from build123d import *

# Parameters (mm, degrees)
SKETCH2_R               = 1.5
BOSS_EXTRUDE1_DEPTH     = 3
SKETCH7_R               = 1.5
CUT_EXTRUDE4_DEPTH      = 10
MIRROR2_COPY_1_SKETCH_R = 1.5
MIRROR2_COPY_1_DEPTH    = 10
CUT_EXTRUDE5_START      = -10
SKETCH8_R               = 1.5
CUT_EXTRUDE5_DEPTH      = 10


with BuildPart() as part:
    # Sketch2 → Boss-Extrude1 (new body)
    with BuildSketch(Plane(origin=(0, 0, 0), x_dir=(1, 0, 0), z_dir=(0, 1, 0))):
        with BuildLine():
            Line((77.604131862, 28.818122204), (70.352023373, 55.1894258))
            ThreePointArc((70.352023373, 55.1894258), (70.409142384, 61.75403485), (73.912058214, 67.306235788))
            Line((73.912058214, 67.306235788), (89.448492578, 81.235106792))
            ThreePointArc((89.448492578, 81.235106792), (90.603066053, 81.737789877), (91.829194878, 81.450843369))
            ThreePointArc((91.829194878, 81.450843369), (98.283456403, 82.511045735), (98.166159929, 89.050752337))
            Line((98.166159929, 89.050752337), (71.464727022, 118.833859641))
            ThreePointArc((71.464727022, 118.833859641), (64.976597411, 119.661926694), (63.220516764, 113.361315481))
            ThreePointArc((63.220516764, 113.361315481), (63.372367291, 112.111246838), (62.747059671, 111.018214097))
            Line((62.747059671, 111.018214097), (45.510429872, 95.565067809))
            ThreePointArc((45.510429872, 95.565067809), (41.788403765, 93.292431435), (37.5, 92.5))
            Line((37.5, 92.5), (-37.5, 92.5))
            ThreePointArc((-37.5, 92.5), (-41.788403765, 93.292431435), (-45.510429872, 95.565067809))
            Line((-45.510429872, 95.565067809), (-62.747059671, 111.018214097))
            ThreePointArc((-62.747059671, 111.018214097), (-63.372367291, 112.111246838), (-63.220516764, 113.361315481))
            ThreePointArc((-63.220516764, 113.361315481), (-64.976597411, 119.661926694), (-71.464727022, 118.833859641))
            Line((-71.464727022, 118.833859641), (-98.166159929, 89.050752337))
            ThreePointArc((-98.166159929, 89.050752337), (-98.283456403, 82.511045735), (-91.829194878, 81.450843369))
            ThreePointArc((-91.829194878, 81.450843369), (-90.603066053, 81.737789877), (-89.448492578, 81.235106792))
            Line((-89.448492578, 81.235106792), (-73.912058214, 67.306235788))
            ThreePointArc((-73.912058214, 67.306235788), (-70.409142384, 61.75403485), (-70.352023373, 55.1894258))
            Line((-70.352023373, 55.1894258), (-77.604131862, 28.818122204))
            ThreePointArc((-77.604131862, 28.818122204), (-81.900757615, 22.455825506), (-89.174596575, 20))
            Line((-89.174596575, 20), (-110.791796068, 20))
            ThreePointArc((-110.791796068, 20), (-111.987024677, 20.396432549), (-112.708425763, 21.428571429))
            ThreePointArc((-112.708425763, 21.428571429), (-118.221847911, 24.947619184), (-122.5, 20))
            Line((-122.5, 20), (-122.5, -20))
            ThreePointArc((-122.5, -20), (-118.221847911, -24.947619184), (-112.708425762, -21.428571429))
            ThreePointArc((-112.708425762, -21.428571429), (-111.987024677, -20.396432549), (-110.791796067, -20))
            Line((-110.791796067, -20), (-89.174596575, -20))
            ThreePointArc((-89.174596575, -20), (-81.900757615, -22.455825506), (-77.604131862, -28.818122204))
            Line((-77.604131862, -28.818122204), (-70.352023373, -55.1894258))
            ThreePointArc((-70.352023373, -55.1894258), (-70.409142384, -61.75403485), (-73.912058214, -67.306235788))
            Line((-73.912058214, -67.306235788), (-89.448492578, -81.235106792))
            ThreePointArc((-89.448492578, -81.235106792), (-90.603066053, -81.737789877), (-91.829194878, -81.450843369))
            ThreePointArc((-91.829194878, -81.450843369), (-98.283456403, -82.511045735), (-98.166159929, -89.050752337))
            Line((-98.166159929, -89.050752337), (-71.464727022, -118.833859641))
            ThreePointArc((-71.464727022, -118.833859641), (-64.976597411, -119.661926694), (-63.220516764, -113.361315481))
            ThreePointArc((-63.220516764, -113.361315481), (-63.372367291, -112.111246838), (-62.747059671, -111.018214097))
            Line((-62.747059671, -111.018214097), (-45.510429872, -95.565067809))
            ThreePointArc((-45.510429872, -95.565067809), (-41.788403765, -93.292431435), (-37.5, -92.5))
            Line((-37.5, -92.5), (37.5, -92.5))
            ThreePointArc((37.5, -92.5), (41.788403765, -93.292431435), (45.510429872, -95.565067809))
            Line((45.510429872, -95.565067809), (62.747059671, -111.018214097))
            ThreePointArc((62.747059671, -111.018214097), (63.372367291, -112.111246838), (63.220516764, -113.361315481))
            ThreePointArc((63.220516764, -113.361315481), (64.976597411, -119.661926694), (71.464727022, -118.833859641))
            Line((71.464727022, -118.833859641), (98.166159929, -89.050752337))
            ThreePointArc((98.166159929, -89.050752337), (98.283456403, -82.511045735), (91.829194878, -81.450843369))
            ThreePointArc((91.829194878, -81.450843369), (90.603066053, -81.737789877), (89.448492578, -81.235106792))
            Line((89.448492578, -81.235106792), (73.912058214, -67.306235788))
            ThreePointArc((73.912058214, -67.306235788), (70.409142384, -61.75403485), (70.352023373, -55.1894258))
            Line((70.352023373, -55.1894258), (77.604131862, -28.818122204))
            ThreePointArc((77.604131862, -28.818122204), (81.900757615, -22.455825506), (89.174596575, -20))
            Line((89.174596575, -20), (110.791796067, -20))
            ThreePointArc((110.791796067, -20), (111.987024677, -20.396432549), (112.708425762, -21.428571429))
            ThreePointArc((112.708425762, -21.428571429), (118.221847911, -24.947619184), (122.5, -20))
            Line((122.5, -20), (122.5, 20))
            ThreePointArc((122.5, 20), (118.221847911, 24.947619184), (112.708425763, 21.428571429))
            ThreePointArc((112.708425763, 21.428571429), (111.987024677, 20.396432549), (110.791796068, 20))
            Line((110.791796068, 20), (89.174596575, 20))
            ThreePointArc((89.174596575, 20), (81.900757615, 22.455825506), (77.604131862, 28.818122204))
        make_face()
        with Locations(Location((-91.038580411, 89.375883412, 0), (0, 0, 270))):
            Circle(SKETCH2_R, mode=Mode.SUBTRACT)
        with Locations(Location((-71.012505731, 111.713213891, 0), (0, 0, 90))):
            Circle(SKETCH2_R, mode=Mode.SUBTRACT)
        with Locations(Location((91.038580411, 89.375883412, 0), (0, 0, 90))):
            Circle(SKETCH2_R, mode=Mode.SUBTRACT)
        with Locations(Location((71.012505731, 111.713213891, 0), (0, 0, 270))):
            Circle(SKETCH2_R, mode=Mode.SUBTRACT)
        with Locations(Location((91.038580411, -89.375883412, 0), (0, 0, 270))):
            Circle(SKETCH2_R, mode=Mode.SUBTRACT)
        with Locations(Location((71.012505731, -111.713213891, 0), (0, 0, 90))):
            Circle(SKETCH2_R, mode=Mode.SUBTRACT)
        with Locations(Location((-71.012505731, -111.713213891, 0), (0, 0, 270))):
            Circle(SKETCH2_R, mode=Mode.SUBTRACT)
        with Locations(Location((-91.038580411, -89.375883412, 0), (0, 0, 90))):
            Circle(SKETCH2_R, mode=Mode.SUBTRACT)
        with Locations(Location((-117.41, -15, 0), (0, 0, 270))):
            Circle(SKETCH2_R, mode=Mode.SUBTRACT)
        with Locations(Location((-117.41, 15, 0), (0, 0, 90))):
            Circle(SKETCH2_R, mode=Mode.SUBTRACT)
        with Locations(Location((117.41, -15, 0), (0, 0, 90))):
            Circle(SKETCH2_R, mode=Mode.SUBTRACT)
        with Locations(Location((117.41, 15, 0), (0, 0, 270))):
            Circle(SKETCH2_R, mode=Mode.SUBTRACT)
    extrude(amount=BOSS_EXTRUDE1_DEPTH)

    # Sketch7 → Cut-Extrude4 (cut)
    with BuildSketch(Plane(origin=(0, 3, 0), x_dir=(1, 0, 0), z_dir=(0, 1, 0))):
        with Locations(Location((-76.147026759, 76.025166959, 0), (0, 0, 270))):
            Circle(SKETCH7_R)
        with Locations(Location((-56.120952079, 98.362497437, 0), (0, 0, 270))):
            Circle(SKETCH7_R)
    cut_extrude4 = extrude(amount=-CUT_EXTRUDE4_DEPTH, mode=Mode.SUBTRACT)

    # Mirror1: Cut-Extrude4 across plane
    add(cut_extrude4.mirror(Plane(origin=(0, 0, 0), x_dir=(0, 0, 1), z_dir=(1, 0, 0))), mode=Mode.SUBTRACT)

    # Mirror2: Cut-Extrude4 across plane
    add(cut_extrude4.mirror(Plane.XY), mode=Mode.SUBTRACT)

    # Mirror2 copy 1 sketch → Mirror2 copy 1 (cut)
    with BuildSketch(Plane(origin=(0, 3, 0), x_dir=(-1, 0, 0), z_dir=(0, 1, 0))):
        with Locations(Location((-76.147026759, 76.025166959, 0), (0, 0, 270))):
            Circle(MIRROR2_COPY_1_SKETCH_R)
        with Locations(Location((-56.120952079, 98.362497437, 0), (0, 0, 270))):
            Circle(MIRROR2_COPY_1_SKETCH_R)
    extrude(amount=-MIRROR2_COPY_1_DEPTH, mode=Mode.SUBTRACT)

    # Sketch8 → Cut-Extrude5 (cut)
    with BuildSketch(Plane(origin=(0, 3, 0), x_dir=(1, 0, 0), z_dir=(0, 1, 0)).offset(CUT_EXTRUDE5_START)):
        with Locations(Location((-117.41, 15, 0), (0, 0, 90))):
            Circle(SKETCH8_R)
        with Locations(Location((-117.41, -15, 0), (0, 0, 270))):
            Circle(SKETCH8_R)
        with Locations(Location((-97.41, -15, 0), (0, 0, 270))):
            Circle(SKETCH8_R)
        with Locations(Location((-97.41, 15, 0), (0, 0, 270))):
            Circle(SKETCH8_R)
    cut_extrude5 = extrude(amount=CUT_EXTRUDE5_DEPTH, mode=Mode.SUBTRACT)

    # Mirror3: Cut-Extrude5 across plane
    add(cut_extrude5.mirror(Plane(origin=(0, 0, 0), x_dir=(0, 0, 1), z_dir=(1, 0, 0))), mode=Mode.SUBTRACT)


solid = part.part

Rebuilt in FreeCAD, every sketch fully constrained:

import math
import FreeCAD as App
import Part
import Sketcher
Q = App.Units.Quantity

doc = App.newDocument("Part")
params = doc.addObject("Spreadsheet::Sheet", "Params")
for row, (alias, value) in enumerate([
    ("sketch1_diameter", "3 mm"),
    ("sketch1_radius", "12 mm"),
    ("sketch1_radius2", "2 mm"),
    ("sketch1_radius3", "5 mm"),
    ("sketch1_width", "75 mm"),
    ("pad1_length", "3 mm"),
    ("sketch2_diameter", "3 mm"),
    ("pocket1_length", "10 mm"),
    ("sketch3_diameter", "3 mm"),
    ("pocket2_length", "10 mm"),
    ("sketch4_diameter", "3 mm"),
    ("pocket3_length", "10 mm"),
], start=1):
    params.set(f"A{row}", alias)
    params.set(f"B{row}", "=" + value)
    params.setAlias(f"B{row}", alias)

body = doc.addObject("PartDesign::Body", "Body")

sketch1 = body.newObject("Sketcher::SketchObject", "Sketch")
sketch1.AttachmentSupport = (doc.getObject("XZ_Plane"), [""])
sketch1.MapMode = "FlatFace"
sketch1.addGeometry([
    Part.LineSegment(App.Vector(77.6, -28.8, 0), App.Vector(70.4, -55.2, 0)),
    Part.ArcOfCircle(Part.Circle(App.Vector(81.9, -58.4, 0), App.Vector(0, 0, 1), 12), math.radians(165), math.radians(228)),
    Part.LineSegment(App.Vector(73.9, -67.3, 0), App.Vector(89.4, -81.2, 0)),
    Part.ArcOfCircle(Part.Circle(App.Vector(90.8, -79.7, 0), App.Vector(0, 0, 1), 2), math.radians(-132), math.radians(-58)),
    Part.ArcOfCircle(Part.Circle(App.Vector(94.4, -85.7, 0), App.Vector(0, 0, 1), 5), math.radians(-42), math.radians(122)),
    Part.LineSegment(App.Vector(98.2, -89.1, 0), App.Vector(71.5, -118.8, 0)),
    Part.ArcOfCircle(Part.Circle(App.Vector(67.7, -115.5, 0), App.Vector(0, 0, 1), 5), math.radians(155), math.radians(318)),
    Part.ArcOfCircle(Part.Circle(App.Vector(61.4, -112.5, 0), App.Vector(0, 0, 1), 2), math.radians(-25), math.radians(48)),
    Part.LineSegment(App.Vector(62.7, -111, 0), App.Vector(45.5, -95.6, 0)),
    Part.ArcOfCircle(Part.Circle(App.Vector(37.5, -104.5, 0), App.Vector(0, 0, 1), 12), math.radians(48), math.radians(90)),
    Part.LineSegment(App.Vector(37.5, -92.5, 0), App.Vector(-37.5, -92.5, 0)),
    Part.ArcOfCircle(Part.Circle(App.Vector(-37.5, -104.5, 0), App.Vector(0, 0, 1), 12), math.radians(90), math.radians(132)),
    Part.LineSegment(App.Vector(-45.5, -95.6, 0), App.Vector(-62.7, -111, 0)),
    Part.ArcOfCircle(Part.Circle(App.Vector(-61.4, -112.5, 0), App.Vector(0, 0, 1), 2), math.radians(132), math.radians(205)),
    Part.ArcOfCircle(Part.Circle(App.Vector(-67.7, -115.5, 0), App.Vector(0, 0, 1), 5), math.radians(-138), math.radians(25)),
    Part.LineSegment(App.Vector(-71.5, -118.8, 0), App.Vector(-98.2, -89.1, 0)),
    Part.ArcOfCircle(Part.Circle(App.Vector(-94.4, -85.7, 0), App.Vector(0, 0, 1), 5), math.radians(58), math.radians(222)),
    Part.ArcOfCircle(Part.Circle(App.Vector(-90.8, -79.7, 0), App.Vector(0, 0, 1), 2), math.radians(-122), math.radians(-48)),
    Part.LineSegment(App.Vector(-89.4, -81.2, 0), App.Vector(-73.9, -67.3, 0)),
    Part.ArcOfCircle(Part.Circle(App.Vector(-81.9, -58.4, 0), App.Vector(0, 0, 1), 12), math.radians(-48), math.radians(15)),
    Part.LineSegment(App.Vector(-70.4, -55.2, 0), App.Vector(-77.6, -28.8, 0)),
    Part.ArcOfCircle(Part.Circle(App.Vector(-89.2, -32, 0), App.Vector(0, 0, 1), 12), math.radians(15), math.radians(90)),
    Part.LineSegment(App.Vector(-89.2, -20, 0), App.Vector(-110.8, -20, 0)),
    Part.ArcOfCircle(Part.Circle(App.Vector(-110.8, -22, 0), App.Vector(0, 0, 1), 2), math.radians(90), math.radians(163)),
    Part.ArcOfCircle(Part.Circle(App.Vector(-117.5, -20, 0), App.Vector(0, 0, 1), 5), math.radians(180), math.radians(343)),
    Part.LineSegment(App.Vector(-122.5, -20, 0), App.Vector(-122.5, 20, 0)),
    Part.ArcOfCircle(Part.Circle(App.Vector(-117.5, 20, 0), App.Vector(0, 0, 1), 5), math.radians(17), math.radians(180)),
    Part.ArcOfCircle(Part.Circle(App.Vector(-110.8, 22, 0), App.Vector(0, 0, 1), 2), math.radians(-163), math.radians(-90)),
    Part.LineSegment(App.Vector(-110.8, 20, 0), App.Vector(-89.2, 20, 0)),
    Part.ArcOfCircle(Part.Circle(App.Vector(-89.2, 32, 0), App.Vector(0, 0, 1), 12), math.radians(-90), math.radians(-15)),
    Part.LineSegment(App.Vector(-77.6, 28.8, 0), App.Vector(-70.4, 55.2, 0)),
    Part.ArcOfCircle(Part.Circle(App.Vector(-81.9, 58.4, 0), App.Vector(0, 0, 1), 12), math.radians(-15), math.radians(48)),
    Part.LineSegment(App.Vector(-73.9, 67.3, 0), App.Vector(-89.4, 81.2, 0)),
    Part.ArcOfCircle(Part.Circle(App.Vector(-90.8, 79.7, 0), App.Vector(0, 0, 1), 2), math.radians(48), math.radians(122)),
    Part.ArcOfCircle(Part.Circle(App.Vector(-94.4, 85.7, 0), App.Vector(0, 0, 1), 5), math.radians(138), math.radians(302)),
    Part.LineSegment(App.Vector(-98.2, 89.1, 0), App.Vector(-71.5, 118.8, 0)),
    Part.ArcOfCircle(Part.Circle(App.Vector(-67.7, 115.5, 0), App.Vector(0, 0, 1), 5), math.radians(-25), math.radians(138)),
    Part.ArcOfCircle(Part.Circle(App.Vector(-61.4, 112.5, 0), App.Vector(0, 0, 1), 2), math.radians(155), math.radians(228)),
    Part.LineSegment(App.Vector(-62.7, 111, 0), App.Vector(-45.5, 95.6, 0)),
    Part.ArcOfCircle(Part.Circle(App.Vector(-37.5, 104.5, 0), App.Vector(0, 0, 1), 12), math.radians(-132), math.radians(-90)),
    Part.LineSegment(App.Vector(-37.5, 92.5, 0), App.Vector(37.5, 92.5, 0)),
    Part.ArcOfCircle(Part.Circle(App.Vector(37.5, 104.5, 0), App.Vector(0, 0, 1), 12), math.radians(-90), math.radians(-48)),
    Part.LineSegment(App.Vector(45.5, 95.6, 0), App.Vector(62.7, 111, 0)),
    Part.ArcOfCircle(Part.Circle(App.Vector(61.4, 112.5, 0), App.Vector(0, 0, 1), 2), math.radians(-48), math.radians(25)),
    Part.ArcOfCircle(Part.Circle(App.Vector(67.7, 115.5, 0), App.Vector(0, 0, 1), 5), math.radians(42), math.radians(205)),
    Part.LineSegment(App.Vector(71.5, 118.8, 0), App.Vector(98.2, 89.1, 0)),
    Part.ArcOfCircle(Part.Circle(App.Vector(94.4, 85.7, 0), App.Vector(0, 0, 1), 5), math.radians(-122), math.radians(42)),
    Part.ArcOfCircle(Part.Circle(App.Vector(90.8, 79.7, 0), App.Vector(0, 0, 1), 2), math.radians(58), math.radians(132)),
    Part.LineSegment(App.Vector(89.4, 81.2, 0), App.Vector(73.9, 67.3, 0)),
    Part.ArcOfCircle(Part.Circle(App.Vector(81.9, 58.4, 0), App.Vector(0, 0, 1), 12), math.radians(132), math.radians(195)),
    Part.LineSegment(App.Vector(70.4, 55.2, 0), App.Vector(77.6, 28.8, 0)),
    Part.ArcOfCircle(Part.Circle(App.Vector(89.2, 32, 0), App.Vector(0, 0, 1), 12), math.radians(-165), math.radians(-90)),
    Part.LineSegment(App.Vector(89.2, 20, 0), App.Vector(110.8, 20, 0)),
    Part.ArcOfCircle(Part.Circle(App.Vector(110.8, 22, 0), App.Vector(0, 0, 1), 2), math.radians(-90), math.radians(-17)),
    Part.ArcOfCircle(Part.Circle(App.Vector(117.5, 20, 0), App.Vector(0, 0, 1), 5), math.radians(0), math.radians(163)),
    Part.LineSegment(App.Vector(122.5, 20, 0), App.Vector(122.5, -20, 0)),
    Part.ArcOfCircle(Part.Circle(App.Vector(117.5, -20, 0), App.Vector(0, 0, 1), 5), math.radians(-163), math.radians(0)),
    Part.ArcOfCircle(Part.Circle(App.Vector(110.8, -22, 0), App.Vector(0, 0, 1), 2), math.radians(17), math.radians(90)),
    Part.LineSegment(App.Vector(110.8, -20, 0), App.Vector(89.2, -20, 0)),
    Part.ArcOfCircle(Part.Circle(App.Vector(89.2, -32, 0), App.Vector(0, 0, 1), 12), math.radians(90), math.radians(165)),
    Part.Circle(App.Vector(-91, 89.4, 0), App.Vector(0, 0, 1), 1.5),
    Part.Circle(App.Vector(-71, 111.7, 0), App.Vector(0, 0, 1), 1.5),
    Part.Circle(App.Vector(-117.4, 15, 0), App.Vector(0, 0, 1), 1.5),
    Part.Circle(App.Vector(71, 111.7, 0), App.Vector(0, 0, 1), 1.5),
    Part.Circle(App.Vector(91, 89.4, 0), App.Vector(0, 0, 1), 1.5),
    Part.Circle(App.Vector(117.4, 15, 0), App.Vector(0, 0, 1), 1.5),
    Part.Circle(App.Vector(-117.4, -15, 0), App.Vector(0, 0, 1), 1.5),
    Part.Circle(App.Vector(-91, -89.4, 0), App.Vector(0, 0, 1), 1.5),
    Part.Circle(App.Vector(-71, -111.7, 0), App.Vector(0, 0, 1), 1.5),
    Part.Circle(App.Vector(117.4, -15, 0), App.Vector(0, 0, 1), 1.5),
    Part.Circle(App.Vector(71, -111.7, 0), App.Vector(0, 0, 1), 1.5),
    Part.Circle(App.Vector(91, -89.4, 0), App.Vector(0, 0, 1), 1.5),
], False)
sketch1.addConstraint([
    Sketcher.Constraint("Tangent", 0, 2, 1, 1),
    Sketcher.Constraint("Tangent", 1, 2, 2, 1),
    Sketcher.Constraint("Tangent", 2, 2, 3, 1),
    Sketcher.Constraint("Tangent", 3, 2, 4, 2),
    Sketcher.Constraint("Tangent", 4, 1, 5, 1),
    Sketcher.Constraint("Tangent", 5, 2, 6, 2),
    Sketcher.Constraint("Tangent", 6, 1, 7, 1),
    Sketcher.Constraint("Tangent", 7, 2, 8, 1),
    Sketcher.Constraint("Tangent", 8, 2, 9, 1),
    Sketcher.Constraint("Tangent", 9, 2, 10, 1),
    Sketcher.Constraint("Tangent", 10, 2, 11, 1),
    Sketcher.Constraint("Tangent", 11, 2, 12, 1),
    Sketcher.Constraint("Tangent", 12, 2, 13, 1),
    Sketcher.Constraint("Tangent", 13, 2, 14, 2),
    Sketcher.Constraint("Tangent", 14, 1, 15, 1),
    Sketcher.Constraint("Tangent", 15, 2, 16, 2),
    Sketcher.Constraint("Tangent", 16, 1, 17, 1),
    Sketcher.Constraint("Tangent", 17, 2, 18, 1),
    Sketcher.Constraint("Tangent", 18, 2, 19, 1),
    Sketcher.Constraint("Tangent", 19, 2, 20, 1),
    Sketcher.Constraint("Tangent", 20, 2, 21, 1),
    Sketcher.Constraint("Tangent", 21, 2, 22, 1),
    Sketcher.Constraint("Tangent", 22, 2, 23, 1),
    Sketcher.Constraint("Tangent", 23, 2, 24, 2),
    Sketcher.Constraint("Tangent", 24, 1, 25, 1),
    Sketcher.Constraint("Tangent", 25, 2, 26, 2),
    Sketcher.Constraint("Tangent", 26, 1, 27, 1),
    Sketcher.Constraint("Tangent", 27, 2, 28, 1),
    Sketcher.Constraint("Tangent", 28, 2, 29, 1),
    Sketcher.Constraint("Tangent", 29, 2, 30, 1),
    Sketcher.Constraint("Tangent", 30, 2, 31, 1),
    Sketcher.Constraint("Tangent", 31, 2, 32, 1),
    Sketcher.Constraint("Tangent", 32, 2, 33, 1),
    Sketcher.Constraint("Tangent", 33, 2, 34, 2),
    Sketcher.Constraint("Tangent", 34, 1, 35, 1),
    Sketcher.Constraint("Tangent", 35, 2, 36, 2),
    Sketcher.Constraint("Tangent", 36, 1, 37, 1),
    Sketcher.Constraint("Tangent", 37, 2, 38, 1),
    Sketcher.Constraint("Tangent", 38, 2, 39, 1),
    Sketcher.Constraint("Tangent", 39, 2, 40, 1),
    Sketcher.Constraint("Tangent", 40, 2, 41, 1),
    Sketcher.Constraint("Tangent", 41, 2, 42, 1),
    Sketcher.Constraint("Tangent", 42, 2, 43, 1),
    Sketcher.Constraint("Tangent", 43, 2, 44, 2),
    Sketcher.Constraint("Tangent", 44, 1, 45, 1),
    Sketcher.Constraint("Tangent", 45, 2, 46, 2),
    Sketcher.Constraint("Tangent", 46, 1, 47, 1),
    Sketcher.Constraint("Tangent", 47, 2, 48, 1),
    Sketcher.Constraint("Tangent", 48, 2, 49, 1),
    Sketcher.Constraint("Tangent", 49, 2, 50, 1),
    Sketcher.Constraint("Tangent", 50, 2, 51, 1),
    Sketcher.Constraint("Tangent", 51, 2, 52, 1),
    Sketcher.Constraint("Tangent", 52, 2, 53, 1),
    Sketcher.Constraint("Tangent", 53, 2, 54, 2),
    Sketcher.Constraint("Tangent", 54, 1, 55, 1),
    Sketcher.Constraint("Tangent", 55, 2, 56, 2),
    Sketcher.Constraint("Tangent", 56, 1, 57, 1),
    Sketcher.Constraint("Tangent", 57, 2, 58, 1),
    Sketcher.Constraint("Tangent", 58, 2, 59, 1),
    Sketcher.Constraint("Tangent", 59, 2, 0, 1),
    Sketcher.Constraint("Horizontal", 10),
    Sketcher.Constraint("Horizontal", 22),
    Sketcher.Constraint("Vertical", 25),
    Sketcher.Constraint("Horizontal", 28),
    Sketcher.Constraint("Horizontal", 40),
    Sketcher.Constraint("Horizontal", 52),
    Sketcher.Constraint("Vertical", 55),
    Sketcher.Constraint("Horizontal", 58),
    Sketcher.Constraint("Equal", 4, 6),
    Sketcher.Constraint("Equal", 3, 7),
    Sketcher.Constraint("Equal", 1, 9),
    Sketcher.Constraint("Equal", 9, 11),
    Sketcher.Constraint("Equal", 7, 13),
    Sketcher.Constraint("Equal", 6, 14),
    Sketcher.Constraint("Equal", 14, 16),
    Sketcher.Constraint("Equal", 13, 17),
    Sketcher.Constraint("Equal", 11, 19),
    Sketcher.Constraint("Equal", 19, 21),
    Sketcher.Constraint("Equal", 17, 23),
    Sketcher.Constraint("Equal", 16, 24),
    Sketcher.Constraint("Equal", 24, 26),
    Sketcher.Constraint("Equal", 23, 27),
    Sketcher.Constraint("Equal", 21, 29),
    Sketcher.Constraint("Equal", 29, 31),
    Sketcher.Constraint("Equal", 27, 33),
    Sketcher.Constraint("Equal", 26, 34),
    Sketcher.Constraint("Equal", 34, 36),
    Sketcher.Constraint("Equal", 33, 37),
    Sketcher.Constraint("Equal", 31, 39),
    Sketcher.Constraint("Equal", 39, 41),
    Sketcher.Constraint("Equal", 37, 43),
    Sketcher.Constraint("Equal", 36, 44),
    Sketcher.Constraint("Equal", 44, 46),
    Sketcher.Constraint("Equal", 43, 47),
    Sketcher.Constraint("Equal", 41, 49),
    Sketcher.Constraint("Equal", 49, 51),
    Sketcher.Constraint("Equal", 47, 53),
    Sketcher.Constraint("Equal", 46, 54),
    Sketcher.Constraint("Equal", 54, 56),
    Sketcher.Constraint("Equal", 53, 57),
    Sketcher.Constraint("Equal", 51, 59),
    Sketcher.Constraint("Equal", 60, 61),
    Sketcher.Constraint("Equal", 61, 62),
    Sketcher.Constraint("Equal", 62, 63),
    Sketcher.Constraint("Equal", 63, 64),
    Sketcher.Constraint("Equal", 64, 65),
    Sketcher.Constraint("Equal", 65, 66),
    Sketcher.Constraint("Equal", 66, 67),
    Sketcher.Constraint("Equal", 67, 68),
    Sketcher.Constraint("Equal", 68, 69),
    Sketcher.Constraint("Equal", 69, 70),
    Sketcher.Constraint("Equal", 70, 71),
    Sketcher.Constraint("Symmetric", 1, 3, 31, 3, -1, 1),
    Sketcher.Constraint("Symmetric", 3, 3, 33, 3, -1, 1),
    Sketcher.Constraint("Symmetric", 6, 3, 36, 3, -1, 1),
    Sketcher.Constraint("Symmetric", 9, 3, 39, 3, -1, 1),
    Sketcher.Constraint("Symmetric", 13, 3, 43, 3, -1, 1),
    Sketcher.Constraint("Symmetric", 16, 3, 46, 3, -1, 1),
    Sketcher.Constraint("Symmetric", 19, 3, 49, 3, -1, 1),
    Sketcher.Constraint("Symmetric", 21, 3, 51, 3, -1, 1),
    Sketcher.Constraint("Symmetric", 24, 3, 54, 3, -1, 1),
    Sketcher.Constraint("Symmetric", 27, 3, 57, 3, -1, 1),
    Sketcher.Constraint("Symmetric", 65, 3, 66, 3, -1, 1),
    Sketcher.Constraint("Symmetric", 64, 3, 67, 3, -1, 1),
    Sketcher.Constraint("Symmetric", 63, 3, 68, 3, -1, 1),
    Sketcher.Constraint("Symmetric", 62, 3, 69, 3, -1, 1),
    Sketcher.Constraint("Symmetric", 61, 3, 70, 3, -1, 1),
    Sketcher.Constraint("Symmetric", 60, 3, 71, 3, -1, 1),
    Sketcher.Constraint("Symmetric", 7, 3, 13, 3, -2),
    Sketcher.Constraint("Symmetric", 4, 3, 16, 3, -2),
    Sketcher.Constraint("Symmetric", 1, 3, 19, 3, -2),
    Sketcher.Constraint("Symmetric", 29, 3, 51, 3, -2),
    Sketcher.Constraint("Symmetric", 61, 3, 63, 3, -2),
    Sketcher.Constraint("Symmetric", 60, 3, 64, 3, -2),
    Sketcher.Constraint("Symmetric", 62, 3, 65, 3, -2),
    Sketcher.Constraint("Symmetric", 38, 2, 41, 2, -2),
    Sketcher.Constraint("Symmetric", 35, 2, 44, 1, -2),
    Sketcher.Constraint("Perpendicular", 2, 5),
    Sketcher.Constraint("Perpendicular", 5, 8),
    Sketcher.Constraint("Perpendicular", 12, 15),
    Sketcher.Constraint("Perpendicular", 15, 18),
    Sketcher.Constraint("Parallel", 0, 30),
    Sketcher.Constraint("Parallel", 18, 42),
    Sketcher.Constraint("Perpendicular", 45, 48),
    Sketcher.Constraint("Horizontal", 26, 3, 54, 3),
    Sketcher.Constraint("Horizontal", 56, 3, 21, 2),
    Sketcher.Constraint("Diameter", 60, Q("3 mm")),
    Sketcher.Constraint("Radius", 1, Q("12 mm")),
    Sketcher.Constraint("Radius", 3, Q("2 mm")),
    Sketcher.Constraint("Radius", 4, Q("5 mm")),
    Sketcher.Constraint("DistanceX", 10, 2, 10, 1, Q("75 mm")),
    Sketcher.Constraint("DistanceY", 25, 1, 25, 2, Q("40 mm")),
    Sketcher.Constraint("Distance", 5, Q("40 mm")),
    Sketcher.Constraint("DistanceY", -1, 1, 62, 3, Q("15 mm")),
    Sketcher.Constraint("DistanceY", 9, 3, -1, 1, Q("104.5 mm")),
    Sketcher.Constraint("DistanceX", 24, 3, -1, 1, Q("117.5 mm")),
    Sketcher.Constraint("DistanceX", 62, 3, -1, 1, Q("117.41 mm")),
    Sketcher.Constraint("DistanceX", 22, 2, 22, 1, Q("21.617199 mm")),
    Sketcher.Constraint("Distance", 8, Q("23.149539 mm")),
    Sketcher.Constraint("DistanceX", -1, 1, 1, 3, Q("81.922488 mm")),
    Sketcher.Constraint("DistanceY", 3, 3, -1, 1, Q("79.745951 mm")),
    Sketcher.Constraint("DistanceX", -1, 1, 4, 3, Q("94.443272 mm")),
    Sketcher.Constraint("DistanceX", -1, 1, 6, 3, Q("67.741839 mm")),
    Sketcher.Constraint("DistanceX", 60, 3, -1, 1, Q("91.03858 mm")),
    Sketcher.Constraint("DistanceY", -1, 1, 60, 3, Q("89.375883 mm")),
    Sketcher.Constraint("DistanceX", 61, 3, -1, 1, Q("71.012506 mm")),
    Sketcher.Constraint("DistanceY", -1, 1, 61, 3, Q("111.713214 mm")),
])
sketch1.setExpression("Constraints[146]", "Params.sketch1_diameter")
sketch1.setExpression("Constraints[147]", "Params.sketch1_radius")
sketch1.setExpression("Constraints[148]", "Params.sketch1_radius2")
sketch1.setExpression("Constraints[149]", "Params.sketch1_radius3")
sketch1.setExpression("Constraints[150]", "Params.sketch1_width")
pad1 = body.newObject("PartDesign::Pad", "Pad")
pad1.Profile = sketch1
pad1.setExpression("Length", "Params.pad1_length")
pad1.Reversed = True

sketch2 = body.newObject("Sketcher::SketchObject", "Sketch001")
sketch2.AttachmentSupport = (doc.getObject("XZ_Plane"), [""])
sketch2.MapMode = "FlatFace"
sketch2.AttachmentOffset = App.Placement(App.Vector(0, 0, -3), App.Rotation())
sketch2.addGeometry([
    Part.Circle(App.Vector(-76.1, -76, 0), App.Vector(0, 0, 1), 1.5),
    Part.Circle(App.Vector(-56.1, -98.4, 0), App.Vector(0, 0, 1), 1.5),
], False)
sketch2.addConstraint([
    Sketcher.Constraint("Equal", 0, 1),
    Sketcher.Constraint("Diameter", 0, Q("3 mm")),
    Sketcher.Constraint("DistanceY", 1, 3, 0, 3, Q("22.33733 mm")),
    Sketcher.Constraint("DistanceX", 0, 3, -1, 1, Q("76.147027 mm")),
    Sketcher.Constraint("DistanceY", 0, 3, -1, 1, Q("76.025167 mm")),
    Sketcher.Constraint("DistanceX", 1, 3, -1, 1, Q("56.120952 mm")),
])
sketch2.setExpression("Constraints[1]", "Params.sketch2_diameter")
pocket1 = body.newObject("PartDesign::Pocket", "Pocket")
pocket1.Profile = sketch2
pocket1.setExpression("Length", "Params.pocket1_length")
pocket1.Reversed = True
doc.recompute()

mirrored = body.newObject("PartDesign::Mirrored", "Mirrored")
mirrored.Originals = [pocket1]
mirrored.MirrorPlane = (doc.getObject("YZ_Plane"), [""])
body.Tip = mirrored
doc.recompute()

mirrored2 = body.newObject("PartDesign::Mirrored", "Mirrored001")
mirrored2.Originals = [pocket1]
mirrored2.MirrorPlane = (doc.getObject("XY_Plane"), [""])
body.Tip = mirrored2

sketch3 = body.newObject("Sketcher::SketchObject", "Sketch002")
sketch3.AttachmentSupport = (doc.getObject("XZ_Plane"), [""])
sketch3.MapMode = "FlatFace"
sketch3.AttachmentOffset = App.Placement(App.Vector(0, 0, -3), App.Rotation())
sketch3.addGeometry([
    Part.Circle(App.Vector(76.1, 76, 0), App.Vector(0, 0, 1), 1.5),
    Part.Circle(App.Vector(56.1, 98.4, 0), App.Vector(0, 0, 1), 1.5),
], False)
sketch3.addConstraint([
    Sketcher.Constraint("Equal", 0, 1),
    Sketcher.Constraint("Diameter", 0, Q("3 mm")),
    Sketcher.Constraint("DistanceY", 0, 3, 1, 3, Q("22.33733 mm")),
    Sketcher.Constraint("DistanceX", -1, 1, 0, 3, Q("76.147027 mm")),
    Sketcher.Constraint("DistanceY", -1, 1, 0, 3, Q("76.025167 mm")),
    Sketcher.Constraint("DistanceX", -1, 1, 1, 3, Q("56.120952 mm")),
])
sketch3.setExpression("Constraints[1]", "Params.sketch3_diameter")
pocket2 = body.newObject("PartDesign::Pocket", "Pocket001")
pocket2.Profile = sketch3
pocket2.setExpression("Length", "Params.pocket2_length")
pocket2.Reversed = True

sketch4 = body.newObject("Sketcher::SketchObject", "Sketch003")
sketch4.AttachmentSupport = (doc.getObject("XZ_Plane"), [""])
sketch4.MapMode = "FlatFace"
sketch4.AttachmentOffset = App.Placement(App.Vector(0, 0, 7), App.Rotation())
sketch4.addGeometry([
    Part.Circle(App.Vector(-117.4, -15, 0), App.Vector(0, 0, 1), 1.5),
    Part.Circle(App.Vector(-117.4, 15, 0), App.Vector(0, 0, 1), 1.5),
    Part.Circle(App.Vector(-97.4, 15, 0), App.Vector(0, 0, 1), 1.5),
    Part.Circle(App.Vector(-97.4, -15, 0), App.Vector(0, 0, 1), 1.5),
], False)
sketch4.addConstraint([
    Sketcher.Constraint("Equal", 0, 1),
    Sketcher.Constraint("Equal", 1, 2),
    Sketcher.Constraint("Equal", 2, 3),
    Sketcher.Constraint("Symmetric", 0, 3, 1, 3, -1),
    Sketcher.Constraint("Symmetric", 2, 3, 3, 3, -1),
    Sketcher.Constraint("Horizontal", 1, 3, 2, 3),
    Sketcher.Constraint("Diameter", 0, Q("3 mm")),
    Sketcher.Constraint("DistanceY", 0, 3, -1, 1, Q("15 mm")),
    Sketcher.Constraint("DistanceX", 1, 3, 2, 3, Q("20 mm")),
    Sketcher.Constraint("DistanceX", 0, 3, -1, 1, Q("117.41 mm")),
])
sketch4.setExpression("Constraints[6]", "Params.sketch4_diameter")
pocket3 = body.newObject("PartDesign::Pocket", "Pocket002")
pocket3.Profile = sketch4
pocket3.setExpression("Length", "Params.pocket3_length")
doc.recompute()

mirrored3 = body.newObject("PartDesign::Mirrored", "Mirrored002")
mirrored3.Originals = [pocket3]
mirrored3.MirrorPlane = (doc.getObject("YZ_Plane"), [""])
body.Tip = mirrored3

doc.recompute()
